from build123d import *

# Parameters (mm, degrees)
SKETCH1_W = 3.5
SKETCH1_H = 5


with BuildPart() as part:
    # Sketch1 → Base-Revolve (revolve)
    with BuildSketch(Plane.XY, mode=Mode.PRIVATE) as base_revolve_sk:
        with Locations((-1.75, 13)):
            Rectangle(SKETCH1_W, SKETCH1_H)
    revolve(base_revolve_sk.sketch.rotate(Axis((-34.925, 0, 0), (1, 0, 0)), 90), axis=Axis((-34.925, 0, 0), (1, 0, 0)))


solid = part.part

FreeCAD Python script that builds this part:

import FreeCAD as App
import Part
import Sketcher
from FreeCAD import Vector
Q = App.Units.Quantity

doc = App.newDocument("Part")
body = doc.addObject("PartDesign::Body", "Body")

# Sketch on XY plane
sketch1 = body.newObject("Sketcher::SketchObject", "Sketch")
sketch1.AttachmentSupport = (doc.getObject("XY_Plane"), [""])
sketch1.MapMode = "FlatFace"
sketch1.addGeometry([
    Part.LineSegment(Vector(-3.5, 15.5, 0), Vector(-3.5, 10.5, 0)),
    Part.LineSegment(Vector(-3.5, 10.5, 0), Vector(0, 10.5, 0)),
    Part.LineSegment(Vector(0, 10.5, 0), Vector(0, 15.5, 0)),
    Part.LineSegment(Vector(0, 15.5, 0), Vector(-3.5, 15.5, 0)),
], False)
sketch1.addConstraint([
    Sketcher.Constraint("Coincident", 0, 2, 1, 1),
    Sketcher.Constraint("Coincident", 1, 2, 2, 1),
    Sketcher.Constraint("Coincident", 2, 2, 3, 1),
    Sketcher.Constraint("Coincident", 3, 2, 0, 1),
    Sketcher.Constraint("Vertical", 0),
    Sketcher.Constraint("Horizontal", 1),
    Sketcher.Constraint("Vertical", 2),
    Sketcher.Constraint("Horizontal", 3),
    Sketcher.Constraint("PointOnObject", 1, 2, -2),
    Sketcher.Constraint("DistanceY", 0, 2, 0, 1, Q("5 mm")),
    Sketcher.Constraint("DistanceX", 1, 1, 1, 2, Q("3.5 mm")),
    Sketcher.Constraint("DistanceY", -1, 1, 0, 2, Q("10.5 mm")),
])
revolution = body.newObject("PartDesign::Revolution", "Revolution")
revolution.Profile = sketch1
revolution.ReferenceAxis = (sketch1, ["H_Axis"])
revolution.Angle = 360

doc.recompute()
